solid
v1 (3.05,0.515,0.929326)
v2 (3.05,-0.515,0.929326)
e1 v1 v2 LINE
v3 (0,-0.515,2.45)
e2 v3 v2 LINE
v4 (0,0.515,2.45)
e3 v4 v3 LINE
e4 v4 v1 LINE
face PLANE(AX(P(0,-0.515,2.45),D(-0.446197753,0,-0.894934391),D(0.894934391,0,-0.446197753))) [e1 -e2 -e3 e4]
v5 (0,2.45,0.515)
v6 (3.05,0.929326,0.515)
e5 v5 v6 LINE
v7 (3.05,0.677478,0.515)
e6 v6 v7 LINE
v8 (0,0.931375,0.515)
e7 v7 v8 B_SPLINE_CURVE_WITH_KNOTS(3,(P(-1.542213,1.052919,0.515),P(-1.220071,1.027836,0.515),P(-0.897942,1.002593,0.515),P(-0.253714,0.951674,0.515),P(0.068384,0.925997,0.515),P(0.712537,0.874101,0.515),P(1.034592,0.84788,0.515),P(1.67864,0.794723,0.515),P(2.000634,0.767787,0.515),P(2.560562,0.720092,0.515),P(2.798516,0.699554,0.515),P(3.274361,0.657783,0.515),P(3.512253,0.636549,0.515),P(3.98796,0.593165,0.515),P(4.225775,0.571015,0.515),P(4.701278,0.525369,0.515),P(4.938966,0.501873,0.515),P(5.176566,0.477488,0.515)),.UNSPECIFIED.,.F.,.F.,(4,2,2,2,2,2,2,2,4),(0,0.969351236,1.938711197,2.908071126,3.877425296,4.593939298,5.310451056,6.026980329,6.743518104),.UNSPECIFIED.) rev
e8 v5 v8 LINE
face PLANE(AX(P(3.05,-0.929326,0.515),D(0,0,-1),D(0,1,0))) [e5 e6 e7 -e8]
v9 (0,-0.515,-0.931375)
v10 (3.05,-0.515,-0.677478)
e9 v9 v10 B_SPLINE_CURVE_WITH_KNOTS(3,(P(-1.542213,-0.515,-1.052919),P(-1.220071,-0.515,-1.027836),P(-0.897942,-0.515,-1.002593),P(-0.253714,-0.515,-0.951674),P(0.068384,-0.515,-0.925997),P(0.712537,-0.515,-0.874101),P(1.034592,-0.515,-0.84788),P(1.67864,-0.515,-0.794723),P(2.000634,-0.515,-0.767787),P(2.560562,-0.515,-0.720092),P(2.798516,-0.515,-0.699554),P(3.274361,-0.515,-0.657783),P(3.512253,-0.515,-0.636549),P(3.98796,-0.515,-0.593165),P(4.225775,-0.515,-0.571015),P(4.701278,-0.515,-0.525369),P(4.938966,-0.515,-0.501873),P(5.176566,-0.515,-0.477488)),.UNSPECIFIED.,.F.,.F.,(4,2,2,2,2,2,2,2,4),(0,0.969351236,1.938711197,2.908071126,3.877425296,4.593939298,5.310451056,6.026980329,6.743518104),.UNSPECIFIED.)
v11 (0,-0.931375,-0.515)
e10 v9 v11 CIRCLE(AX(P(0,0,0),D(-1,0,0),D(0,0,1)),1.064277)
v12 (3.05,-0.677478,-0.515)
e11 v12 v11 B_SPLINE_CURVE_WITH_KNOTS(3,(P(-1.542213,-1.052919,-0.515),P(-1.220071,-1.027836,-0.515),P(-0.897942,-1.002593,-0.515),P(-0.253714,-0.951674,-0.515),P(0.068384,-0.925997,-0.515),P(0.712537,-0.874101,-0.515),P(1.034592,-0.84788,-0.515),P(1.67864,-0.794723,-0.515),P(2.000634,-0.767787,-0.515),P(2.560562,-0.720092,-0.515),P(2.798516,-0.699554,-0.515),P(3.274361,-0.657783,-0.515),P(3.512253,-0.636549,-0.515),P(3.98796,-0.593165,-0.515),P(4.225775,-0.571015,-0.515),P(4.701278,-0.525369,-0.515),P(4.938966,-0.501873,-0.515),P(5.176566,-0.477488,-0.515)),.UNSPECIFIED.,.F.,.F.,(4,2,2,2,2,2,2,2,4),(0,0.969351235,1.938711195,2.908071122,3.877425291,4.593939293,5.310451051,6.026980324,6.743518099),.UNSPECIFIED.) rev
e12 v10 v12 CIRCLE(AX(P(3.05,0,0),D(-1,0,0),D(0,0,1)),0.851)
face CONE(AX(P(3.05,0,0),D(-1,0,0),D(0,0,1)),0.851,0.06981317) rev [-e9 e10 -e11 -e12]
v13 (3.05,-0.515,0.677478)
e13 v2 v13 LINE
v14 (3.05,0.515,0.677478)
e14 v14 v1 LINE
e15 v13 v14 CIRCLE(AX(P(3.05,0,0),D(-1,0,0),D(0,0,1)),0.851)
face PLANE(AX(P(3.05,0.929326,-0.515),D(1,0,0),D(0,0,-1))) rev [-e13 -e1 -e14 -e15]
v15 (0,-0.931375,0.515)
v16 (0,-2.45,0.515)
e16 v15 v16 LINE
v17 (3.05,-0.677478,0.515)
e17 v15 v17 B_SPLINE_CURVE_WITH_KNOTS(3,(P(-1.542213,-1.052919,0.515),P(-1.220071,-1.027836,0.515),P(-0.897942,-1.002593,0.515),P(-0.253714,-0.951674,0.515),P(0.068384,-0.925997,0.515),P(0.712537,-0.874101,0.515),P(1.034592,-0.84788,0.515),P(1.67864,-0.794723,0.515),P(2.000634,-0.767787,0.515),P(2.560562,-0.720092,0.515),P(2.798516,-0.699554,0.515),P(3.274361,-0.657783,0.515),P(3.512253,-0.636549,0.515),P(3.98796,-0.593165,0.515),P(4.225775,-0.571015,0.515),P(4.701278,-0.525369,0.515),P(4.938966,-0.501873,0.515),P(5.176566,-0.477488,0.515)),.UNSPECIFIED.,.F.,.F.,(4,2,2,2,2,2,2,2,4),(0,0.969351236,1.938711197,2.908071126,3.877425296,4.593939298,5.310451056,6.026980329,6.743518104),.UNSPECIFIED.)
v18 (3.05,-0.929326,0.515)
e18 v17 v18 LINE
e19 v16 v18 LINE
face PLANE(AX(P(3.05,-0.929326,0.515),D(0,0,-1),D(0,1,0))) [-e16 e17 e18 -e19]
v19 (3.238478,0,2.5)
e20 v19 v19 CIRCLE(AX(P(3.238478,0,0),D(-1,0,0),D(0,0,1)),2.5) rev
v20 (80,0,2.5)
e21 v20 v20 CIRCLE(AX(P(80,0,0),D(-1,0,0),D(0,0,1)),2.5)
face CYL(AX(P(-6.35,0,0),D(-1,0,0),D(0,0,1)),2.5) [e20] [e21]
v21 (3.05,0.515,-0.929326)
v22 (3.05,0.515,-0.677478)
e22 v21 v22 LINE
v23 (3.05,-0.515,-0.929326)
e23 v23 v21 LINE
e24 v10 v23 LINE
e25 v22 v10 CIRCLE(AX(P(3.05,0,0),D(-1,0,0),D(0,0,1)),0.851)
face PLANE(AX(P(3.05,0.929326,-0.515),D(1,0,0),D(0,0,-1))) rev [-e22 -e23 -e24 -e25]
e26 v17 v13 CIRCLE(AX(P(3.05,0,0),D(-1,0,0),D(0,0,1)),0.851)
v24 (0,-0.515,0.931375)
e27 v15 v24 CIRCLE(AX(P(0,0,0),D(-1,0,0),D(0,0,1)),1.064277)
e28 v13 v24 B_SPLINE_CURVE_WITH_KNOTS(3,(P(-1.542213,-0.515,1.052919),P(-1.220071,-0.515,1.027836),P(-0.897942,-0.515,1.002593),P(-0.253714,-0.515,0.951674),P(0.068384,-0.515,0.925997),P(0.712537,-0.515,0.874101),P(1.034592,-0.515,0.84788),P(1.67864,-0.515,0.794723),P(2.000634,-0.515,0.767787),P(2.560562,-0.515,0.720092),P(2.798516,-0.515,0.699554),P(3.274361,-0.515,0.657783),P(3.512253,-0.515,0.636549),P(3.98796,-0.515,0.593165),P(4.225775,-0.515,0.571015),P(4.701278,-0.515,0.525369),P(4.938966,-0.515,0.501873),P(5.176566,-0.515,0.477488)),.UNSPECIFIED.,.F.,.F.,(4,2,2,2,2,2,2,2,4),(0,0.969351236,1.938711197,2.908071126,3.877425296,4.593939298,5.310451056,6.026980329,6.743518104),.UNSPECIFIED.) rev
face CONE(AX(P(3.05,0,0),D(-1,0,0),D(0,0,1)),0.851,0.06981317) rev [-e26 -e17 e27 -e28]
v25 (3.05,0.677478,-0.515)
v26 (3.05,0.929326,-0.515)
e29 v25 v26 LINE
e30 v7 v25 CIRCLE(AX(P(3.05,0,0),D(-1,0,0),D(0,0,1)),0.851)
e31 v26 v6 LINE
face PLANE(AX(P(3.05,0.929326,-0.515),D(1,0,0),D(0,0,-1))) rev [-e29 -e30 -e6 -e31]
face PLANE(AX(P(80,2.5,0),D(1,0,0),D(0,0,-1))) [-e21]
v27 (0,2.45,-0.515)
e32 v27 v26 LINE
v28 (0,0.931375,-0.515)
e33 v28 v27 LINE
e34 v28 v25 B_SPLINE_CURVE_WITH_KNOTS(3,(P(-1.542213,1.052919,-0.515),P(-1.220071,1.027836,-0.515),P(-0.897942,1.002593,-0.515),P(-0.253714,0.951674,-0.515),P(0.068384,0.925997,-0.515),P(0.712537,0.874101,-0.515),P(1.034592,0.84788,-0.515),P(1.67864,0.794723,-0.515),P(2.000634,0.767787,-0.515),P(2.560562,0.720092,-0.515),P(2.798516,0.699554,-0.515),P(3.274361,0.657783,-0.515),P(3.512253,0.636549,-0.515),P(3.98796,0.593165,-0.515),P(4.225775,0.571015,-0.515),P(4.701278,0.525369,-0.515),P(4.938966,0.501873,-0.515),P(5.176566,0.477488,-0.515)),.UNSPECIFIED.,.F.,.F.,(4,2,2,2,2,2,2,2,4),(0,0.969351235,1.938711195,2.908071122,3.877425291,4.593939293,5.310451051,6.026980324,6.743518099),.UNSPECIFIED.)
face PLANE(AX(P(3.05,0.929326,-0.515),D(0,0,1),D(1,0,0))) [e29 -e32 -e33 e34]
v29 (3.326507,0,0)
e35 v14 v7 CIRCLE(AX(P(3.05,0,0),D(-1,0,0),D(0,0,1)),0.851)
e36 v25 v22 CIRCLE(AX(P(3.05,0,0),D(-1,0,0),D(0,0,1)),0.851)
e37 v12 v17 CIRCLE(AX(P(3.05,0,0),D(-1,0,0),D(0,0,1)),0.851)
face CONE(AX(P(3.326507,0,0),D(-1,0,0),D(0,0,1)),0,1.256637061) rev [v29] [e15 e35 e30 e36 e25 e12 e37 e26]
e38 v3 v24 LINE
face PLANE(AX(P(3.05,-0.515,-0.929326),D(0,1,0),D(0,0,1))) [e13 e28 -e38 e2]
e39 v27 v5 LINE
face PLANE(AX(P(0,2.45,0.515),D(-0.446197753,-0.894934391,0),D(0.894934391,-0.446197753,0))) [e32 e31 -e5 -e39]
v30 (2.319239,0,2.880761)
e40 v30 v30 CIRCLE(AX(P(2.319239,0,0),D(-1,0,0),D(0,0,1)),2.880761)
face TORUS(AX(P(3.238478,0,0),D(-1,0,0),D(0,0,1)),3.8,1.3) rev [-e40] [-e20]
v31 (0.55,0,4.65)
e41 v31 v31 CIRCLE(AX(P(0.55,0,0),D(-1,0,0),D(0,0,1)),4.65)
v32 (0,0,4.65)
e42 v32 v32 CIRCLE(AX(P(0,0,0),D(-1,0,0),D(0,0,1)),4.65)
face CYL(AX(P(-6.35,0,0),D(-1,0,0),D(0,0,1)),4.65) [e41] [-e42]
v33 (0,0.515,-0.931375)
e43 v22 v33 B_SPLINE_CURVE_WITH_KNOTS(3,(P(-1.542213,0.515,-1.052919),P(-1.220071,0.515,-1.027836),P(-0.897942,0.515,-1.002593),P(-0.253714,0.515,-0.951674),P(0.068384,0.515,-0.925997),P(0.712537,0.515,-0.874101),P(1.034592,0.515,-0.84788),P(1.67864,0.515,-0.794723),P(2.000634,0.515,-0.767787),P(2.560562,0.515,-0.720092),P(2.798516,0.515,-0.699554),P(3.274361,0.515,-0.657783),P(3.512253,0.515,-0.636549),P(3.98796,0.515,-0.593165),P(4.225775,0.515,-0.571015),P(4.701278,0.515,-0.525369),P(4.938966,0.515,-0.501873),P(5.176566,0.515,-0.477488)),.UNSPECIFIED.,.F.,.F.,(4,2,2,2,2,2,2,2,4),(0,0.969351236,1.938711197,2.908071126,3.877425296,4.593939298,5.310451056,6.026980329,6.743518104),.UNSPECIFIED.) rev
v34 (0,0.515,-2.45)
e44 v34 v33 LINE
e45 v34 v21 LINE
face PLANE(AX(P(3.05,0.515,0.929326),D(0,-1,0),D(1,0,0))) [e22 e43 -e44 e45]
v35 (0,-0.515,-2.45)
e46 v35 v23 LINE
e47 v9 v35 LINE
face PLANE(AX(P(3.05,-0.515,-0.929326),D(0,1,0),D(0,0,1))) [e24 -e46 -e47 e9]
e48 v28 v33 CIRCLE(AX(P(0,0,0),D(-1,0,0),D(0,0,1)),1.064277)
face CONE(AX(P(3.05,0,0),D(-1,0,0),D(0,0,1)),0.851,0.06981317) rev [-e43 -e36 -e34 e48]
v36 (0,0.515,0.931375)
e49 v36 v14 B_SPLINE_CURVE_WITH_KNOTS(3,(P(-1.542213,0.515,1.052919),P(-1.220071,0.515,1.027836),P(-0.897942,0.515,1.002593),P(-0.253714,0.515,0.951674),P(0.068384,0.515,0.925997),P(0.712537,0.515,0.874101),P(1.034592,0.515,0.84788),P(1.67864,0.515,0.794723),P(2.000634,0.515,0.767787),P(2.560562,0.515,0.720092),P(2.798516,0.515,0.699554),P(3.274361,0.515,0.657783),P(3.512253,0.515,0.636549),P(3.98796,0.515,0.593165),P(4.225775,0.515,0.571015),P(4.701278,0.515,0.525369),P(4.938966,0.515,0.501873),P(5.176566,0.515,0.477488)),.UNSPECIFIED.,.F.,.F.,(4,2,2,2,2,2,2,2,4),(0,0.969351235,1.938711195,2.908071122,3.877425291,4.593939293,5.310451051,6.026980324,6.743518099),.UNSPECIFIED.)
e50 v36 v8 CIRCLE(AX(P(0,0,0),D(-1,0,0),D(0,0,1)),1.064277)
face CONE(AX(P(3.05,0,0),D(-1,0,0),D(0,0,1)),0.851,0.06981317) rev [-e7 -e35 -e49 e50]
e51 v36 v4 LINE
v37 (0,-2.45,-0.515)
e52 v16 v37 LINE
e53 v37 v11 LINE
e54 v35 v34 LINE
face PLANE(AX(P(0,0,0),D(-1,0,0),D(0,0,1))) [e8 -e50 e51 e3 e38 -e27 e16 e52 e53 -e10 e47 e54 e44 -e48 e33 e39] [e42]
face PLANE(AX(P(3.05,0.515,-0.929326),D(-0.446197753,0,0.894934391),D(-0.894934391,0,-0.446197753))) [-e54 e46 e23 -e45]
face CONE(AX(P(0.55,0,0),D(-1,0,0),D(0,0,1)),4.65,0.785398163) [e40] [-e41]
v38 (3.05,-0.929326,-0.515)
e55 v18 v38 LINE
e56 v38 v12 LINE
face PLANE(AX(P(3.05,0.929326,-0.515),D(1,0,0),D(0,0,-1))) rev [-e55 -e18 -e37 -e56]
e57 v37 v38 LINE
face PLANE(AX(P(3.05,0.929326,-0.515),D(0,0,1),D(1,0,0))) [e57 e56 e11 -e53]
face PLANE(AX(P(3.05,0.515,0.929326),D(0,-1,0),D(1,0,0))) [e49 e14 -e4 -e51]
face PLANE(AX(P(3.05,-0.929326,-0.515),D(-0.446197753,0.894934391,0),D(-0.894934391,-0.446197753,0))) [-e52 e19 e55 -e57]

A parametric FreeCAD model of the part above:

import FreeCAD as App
import Part
import Sketcher
from FreeCAD import Vector
Q = App.Units.Quantity


def edges_at(feature, points):
    """Names of the edges that pass closest to the given points."""
    edges = feature.Shape.Edges
    near = lambda p: min(range(len(edges)), key=lambda i: edges[i].distToShape(Part.Vertex(*p))[0])
    return sorted({f"Edge{near(p) + 1}" for p in points})


def add_polygon(sketch, points):
    """Adds a closed chain of lines whose ends are joined by coincident constraints."""
    first, n = sketch.GeometryCount, len(points)
    for a, b in zip(points, points[1:] + points[:1]):
        sketch.addGeometry(Part.LineSegment(App.Vector(*a, 0), App.Vector(*b, 0)), False)
    for i in range(n):
        sketch.addConstraint(Sketcher.Constraint("Coincident", first + i, 2, first + (i + 1) % n, 1))

doc = App.newDocument("Part")
body = doc.addObject("PartDesign::Body", "Body")

# Sketch on XY plane
sketch1 = doc.addObject("Sketcher::SketchObject", "Sketch")
body.addObject(sketch1)
sketch1.AttachmentSupport = (doc.XY_Plane, [""])
sketch1.MapMode = "FlatFace"
add_polygon(sketch1, [(0, 4.7), (0, 0), (80, 0), (80, 2.5), (2.7, 2.5), (0.6, 4.7)])  # lines 0-5
sketch1.addConstraint([
    Sketcher.Constraint("Vertical", 0),
    Sketcher.Constraint("Horizontal", 1),
    Sketcher.Constraint("Vertical", 2),
    Sketcher.Constraint("Horizontal", 3),
    Sketcher.Constraint("Horizontal", 5),
    Sketcher.Constraint("Coincident", 0, 2, -1, 1),
    Sketcher.Constraint("DistanceX", 1, 1, 1, 2, 80.0),
    Sketcher.Constraint("Angle", 4, Q("135 deg")),
    Sketcher.Constraint("DistanceX", 3, 2, 3, 1, 77.3),
    Sketcher.Constraint("DistanceY", 2, 1, 2, 2, 2.5),
    Sketcher.Constraint("DistanceX", 5, 2, 5, 1, 0.55),
])
revolution = doc.addObject("PartDesign::Revolution", "Revolution")
body.addObject(revolution)
revolution.Profile = sketch1
revolution.ReferenceAxis = (sketch1, ["H_Axis"])
revolution.Angle = 360
doc.recompute()

fillet = doc.addObject("PartDesign::Fillet", "Fillet")
body.addObject(fillet)
fillet.Base = (revolution, edges_at(revolution, [(2.7, 0, -2.5)]))
fillet.Radius = 1.3

# Sketch on YZ plane
sketch2 = doc.addObject("Sketcher::SketchObject", "Sketch001")
body.addObject(sketch2)
sketch2.AttachmentSupport = (doc.YZ_Plane, [""])
sketch2.MapMode = "FlatFace"
add_polygon(sketch2, [(2.5, 0.5), (2.5, -0.5), (-2.5, -0.5), (-2.5, 0.5)])  # lines 0-3
sketch2.addConstraint([
    Sketcher.Constraint("Vertical", 0),
    Sketcher.Constraint("Horizontal", 1),
    Sketcher.Constraint("Vertical", 2),
    Sketcher.Constraint("Horizontal", 3),
    Sketcher.Constraint("Symmetric", 0, 2, 2, 2, -1, 1),
    Sketcher.Constraint("DistanceX", 1, 2, 1, 1, 4.9),
    Sketcher.Constraint("DistanceY", 0, 2, 0, 1, 1.03),
])

# Sketch on YZ plane
sketch3 = doc.addObject("Sketcher::SketchObject", "Sketch002")
body.addObject(sketch3)
sketch3.AttachmentSupport = (doc.YZ_Plane, [""])
sketch3.MapMode = "FlatFace"
sketch3.AttachmentOffset = App.Placement(Vector(0, 0, 3.05), App.Rotation())
add_polygon(sketch3, [(0.9, 0.5), (0.9, -0.5), (-0.9, -0.5), (-0.9, 0.5)])  # lines 0-3
sketch3.addConstraint([
    Sketcher.Constraint("Vertical", 0),
    Sketcher.Constraint("Horizontal", 1),
    Sketcher.Constraint("Vertical", 2),
    Sketcher.Constraint("Horizontal", 3),
    Sketcher.Constraint("Symmetric", 0, 2, 2, 2, -1, 1),
    Sketcher.Constraint("DistanceY", 0, 2, 0, 1, 1.03),
    Sketcher.Constraint("DistanceX", 1, 2, 1, 1, 1.858653),
])

subtractiveloft = doc.addObject("PartDesign::SubtractiveLoft", "SubtractiveLoft")
body.addObject(subtractiveloft)
subtractiveloft.Profile = sketch2
subtractiveloft.Sections = [sketch3]
doc.recompute()

polarpattern = doc.addObject("PartDesign::PolarPattern", "PolarPattern")
body.addObject(polarpattern)
polarpattern.Originals = [subtractiveloft]
polarpattern.Axis = (doc.X_Axis, [""])
polarpattern.Angle = 90
polarpattern.Occurrences = 2
body.Tip = polarpattern

# Sketch on XY plane
sketch4 = doc.addObject("Sketcher::SketchObject", "Sketch003")
body.addObject(sketch4)
sketch4.AttachmentSupport = (doc.XY_Plane, [""])
sketch4.MapMode = "FlatFace"
add_polygon(sketch4, [(0, 1.1), (0, 0), (3.3, 0), (3, 0.9)])  # lines 0-3
sketch4.addConstraint([
    Sketcher.Constraint("Vertical", 0),
    Sketcher.Constraint("Horizontal", 1),
    Sketcher.Constraint("Coincident", 0, 2, -1, 1),
    Sketcher.Constraint("Angle", 2, Q("108 deg")),
    Sketcher.Constraint("Angle", 3, Q("176 deg")),
    Sketcher.Constraint("DistanceX", -1, 1, 2, 2, 3.05),
    Sketcher.Constraint("DistanceY", -1, 1, 2, 2, 0.851),
])
groove = doc.addObject("PartDesign::Groove", "Groove")
body.addObject(groove)
groove.Profile = sketch4
groove.ReferenceAxis = (sketch4, ["H_Axis"])
groove.Angle = 360

doc.recompute()
